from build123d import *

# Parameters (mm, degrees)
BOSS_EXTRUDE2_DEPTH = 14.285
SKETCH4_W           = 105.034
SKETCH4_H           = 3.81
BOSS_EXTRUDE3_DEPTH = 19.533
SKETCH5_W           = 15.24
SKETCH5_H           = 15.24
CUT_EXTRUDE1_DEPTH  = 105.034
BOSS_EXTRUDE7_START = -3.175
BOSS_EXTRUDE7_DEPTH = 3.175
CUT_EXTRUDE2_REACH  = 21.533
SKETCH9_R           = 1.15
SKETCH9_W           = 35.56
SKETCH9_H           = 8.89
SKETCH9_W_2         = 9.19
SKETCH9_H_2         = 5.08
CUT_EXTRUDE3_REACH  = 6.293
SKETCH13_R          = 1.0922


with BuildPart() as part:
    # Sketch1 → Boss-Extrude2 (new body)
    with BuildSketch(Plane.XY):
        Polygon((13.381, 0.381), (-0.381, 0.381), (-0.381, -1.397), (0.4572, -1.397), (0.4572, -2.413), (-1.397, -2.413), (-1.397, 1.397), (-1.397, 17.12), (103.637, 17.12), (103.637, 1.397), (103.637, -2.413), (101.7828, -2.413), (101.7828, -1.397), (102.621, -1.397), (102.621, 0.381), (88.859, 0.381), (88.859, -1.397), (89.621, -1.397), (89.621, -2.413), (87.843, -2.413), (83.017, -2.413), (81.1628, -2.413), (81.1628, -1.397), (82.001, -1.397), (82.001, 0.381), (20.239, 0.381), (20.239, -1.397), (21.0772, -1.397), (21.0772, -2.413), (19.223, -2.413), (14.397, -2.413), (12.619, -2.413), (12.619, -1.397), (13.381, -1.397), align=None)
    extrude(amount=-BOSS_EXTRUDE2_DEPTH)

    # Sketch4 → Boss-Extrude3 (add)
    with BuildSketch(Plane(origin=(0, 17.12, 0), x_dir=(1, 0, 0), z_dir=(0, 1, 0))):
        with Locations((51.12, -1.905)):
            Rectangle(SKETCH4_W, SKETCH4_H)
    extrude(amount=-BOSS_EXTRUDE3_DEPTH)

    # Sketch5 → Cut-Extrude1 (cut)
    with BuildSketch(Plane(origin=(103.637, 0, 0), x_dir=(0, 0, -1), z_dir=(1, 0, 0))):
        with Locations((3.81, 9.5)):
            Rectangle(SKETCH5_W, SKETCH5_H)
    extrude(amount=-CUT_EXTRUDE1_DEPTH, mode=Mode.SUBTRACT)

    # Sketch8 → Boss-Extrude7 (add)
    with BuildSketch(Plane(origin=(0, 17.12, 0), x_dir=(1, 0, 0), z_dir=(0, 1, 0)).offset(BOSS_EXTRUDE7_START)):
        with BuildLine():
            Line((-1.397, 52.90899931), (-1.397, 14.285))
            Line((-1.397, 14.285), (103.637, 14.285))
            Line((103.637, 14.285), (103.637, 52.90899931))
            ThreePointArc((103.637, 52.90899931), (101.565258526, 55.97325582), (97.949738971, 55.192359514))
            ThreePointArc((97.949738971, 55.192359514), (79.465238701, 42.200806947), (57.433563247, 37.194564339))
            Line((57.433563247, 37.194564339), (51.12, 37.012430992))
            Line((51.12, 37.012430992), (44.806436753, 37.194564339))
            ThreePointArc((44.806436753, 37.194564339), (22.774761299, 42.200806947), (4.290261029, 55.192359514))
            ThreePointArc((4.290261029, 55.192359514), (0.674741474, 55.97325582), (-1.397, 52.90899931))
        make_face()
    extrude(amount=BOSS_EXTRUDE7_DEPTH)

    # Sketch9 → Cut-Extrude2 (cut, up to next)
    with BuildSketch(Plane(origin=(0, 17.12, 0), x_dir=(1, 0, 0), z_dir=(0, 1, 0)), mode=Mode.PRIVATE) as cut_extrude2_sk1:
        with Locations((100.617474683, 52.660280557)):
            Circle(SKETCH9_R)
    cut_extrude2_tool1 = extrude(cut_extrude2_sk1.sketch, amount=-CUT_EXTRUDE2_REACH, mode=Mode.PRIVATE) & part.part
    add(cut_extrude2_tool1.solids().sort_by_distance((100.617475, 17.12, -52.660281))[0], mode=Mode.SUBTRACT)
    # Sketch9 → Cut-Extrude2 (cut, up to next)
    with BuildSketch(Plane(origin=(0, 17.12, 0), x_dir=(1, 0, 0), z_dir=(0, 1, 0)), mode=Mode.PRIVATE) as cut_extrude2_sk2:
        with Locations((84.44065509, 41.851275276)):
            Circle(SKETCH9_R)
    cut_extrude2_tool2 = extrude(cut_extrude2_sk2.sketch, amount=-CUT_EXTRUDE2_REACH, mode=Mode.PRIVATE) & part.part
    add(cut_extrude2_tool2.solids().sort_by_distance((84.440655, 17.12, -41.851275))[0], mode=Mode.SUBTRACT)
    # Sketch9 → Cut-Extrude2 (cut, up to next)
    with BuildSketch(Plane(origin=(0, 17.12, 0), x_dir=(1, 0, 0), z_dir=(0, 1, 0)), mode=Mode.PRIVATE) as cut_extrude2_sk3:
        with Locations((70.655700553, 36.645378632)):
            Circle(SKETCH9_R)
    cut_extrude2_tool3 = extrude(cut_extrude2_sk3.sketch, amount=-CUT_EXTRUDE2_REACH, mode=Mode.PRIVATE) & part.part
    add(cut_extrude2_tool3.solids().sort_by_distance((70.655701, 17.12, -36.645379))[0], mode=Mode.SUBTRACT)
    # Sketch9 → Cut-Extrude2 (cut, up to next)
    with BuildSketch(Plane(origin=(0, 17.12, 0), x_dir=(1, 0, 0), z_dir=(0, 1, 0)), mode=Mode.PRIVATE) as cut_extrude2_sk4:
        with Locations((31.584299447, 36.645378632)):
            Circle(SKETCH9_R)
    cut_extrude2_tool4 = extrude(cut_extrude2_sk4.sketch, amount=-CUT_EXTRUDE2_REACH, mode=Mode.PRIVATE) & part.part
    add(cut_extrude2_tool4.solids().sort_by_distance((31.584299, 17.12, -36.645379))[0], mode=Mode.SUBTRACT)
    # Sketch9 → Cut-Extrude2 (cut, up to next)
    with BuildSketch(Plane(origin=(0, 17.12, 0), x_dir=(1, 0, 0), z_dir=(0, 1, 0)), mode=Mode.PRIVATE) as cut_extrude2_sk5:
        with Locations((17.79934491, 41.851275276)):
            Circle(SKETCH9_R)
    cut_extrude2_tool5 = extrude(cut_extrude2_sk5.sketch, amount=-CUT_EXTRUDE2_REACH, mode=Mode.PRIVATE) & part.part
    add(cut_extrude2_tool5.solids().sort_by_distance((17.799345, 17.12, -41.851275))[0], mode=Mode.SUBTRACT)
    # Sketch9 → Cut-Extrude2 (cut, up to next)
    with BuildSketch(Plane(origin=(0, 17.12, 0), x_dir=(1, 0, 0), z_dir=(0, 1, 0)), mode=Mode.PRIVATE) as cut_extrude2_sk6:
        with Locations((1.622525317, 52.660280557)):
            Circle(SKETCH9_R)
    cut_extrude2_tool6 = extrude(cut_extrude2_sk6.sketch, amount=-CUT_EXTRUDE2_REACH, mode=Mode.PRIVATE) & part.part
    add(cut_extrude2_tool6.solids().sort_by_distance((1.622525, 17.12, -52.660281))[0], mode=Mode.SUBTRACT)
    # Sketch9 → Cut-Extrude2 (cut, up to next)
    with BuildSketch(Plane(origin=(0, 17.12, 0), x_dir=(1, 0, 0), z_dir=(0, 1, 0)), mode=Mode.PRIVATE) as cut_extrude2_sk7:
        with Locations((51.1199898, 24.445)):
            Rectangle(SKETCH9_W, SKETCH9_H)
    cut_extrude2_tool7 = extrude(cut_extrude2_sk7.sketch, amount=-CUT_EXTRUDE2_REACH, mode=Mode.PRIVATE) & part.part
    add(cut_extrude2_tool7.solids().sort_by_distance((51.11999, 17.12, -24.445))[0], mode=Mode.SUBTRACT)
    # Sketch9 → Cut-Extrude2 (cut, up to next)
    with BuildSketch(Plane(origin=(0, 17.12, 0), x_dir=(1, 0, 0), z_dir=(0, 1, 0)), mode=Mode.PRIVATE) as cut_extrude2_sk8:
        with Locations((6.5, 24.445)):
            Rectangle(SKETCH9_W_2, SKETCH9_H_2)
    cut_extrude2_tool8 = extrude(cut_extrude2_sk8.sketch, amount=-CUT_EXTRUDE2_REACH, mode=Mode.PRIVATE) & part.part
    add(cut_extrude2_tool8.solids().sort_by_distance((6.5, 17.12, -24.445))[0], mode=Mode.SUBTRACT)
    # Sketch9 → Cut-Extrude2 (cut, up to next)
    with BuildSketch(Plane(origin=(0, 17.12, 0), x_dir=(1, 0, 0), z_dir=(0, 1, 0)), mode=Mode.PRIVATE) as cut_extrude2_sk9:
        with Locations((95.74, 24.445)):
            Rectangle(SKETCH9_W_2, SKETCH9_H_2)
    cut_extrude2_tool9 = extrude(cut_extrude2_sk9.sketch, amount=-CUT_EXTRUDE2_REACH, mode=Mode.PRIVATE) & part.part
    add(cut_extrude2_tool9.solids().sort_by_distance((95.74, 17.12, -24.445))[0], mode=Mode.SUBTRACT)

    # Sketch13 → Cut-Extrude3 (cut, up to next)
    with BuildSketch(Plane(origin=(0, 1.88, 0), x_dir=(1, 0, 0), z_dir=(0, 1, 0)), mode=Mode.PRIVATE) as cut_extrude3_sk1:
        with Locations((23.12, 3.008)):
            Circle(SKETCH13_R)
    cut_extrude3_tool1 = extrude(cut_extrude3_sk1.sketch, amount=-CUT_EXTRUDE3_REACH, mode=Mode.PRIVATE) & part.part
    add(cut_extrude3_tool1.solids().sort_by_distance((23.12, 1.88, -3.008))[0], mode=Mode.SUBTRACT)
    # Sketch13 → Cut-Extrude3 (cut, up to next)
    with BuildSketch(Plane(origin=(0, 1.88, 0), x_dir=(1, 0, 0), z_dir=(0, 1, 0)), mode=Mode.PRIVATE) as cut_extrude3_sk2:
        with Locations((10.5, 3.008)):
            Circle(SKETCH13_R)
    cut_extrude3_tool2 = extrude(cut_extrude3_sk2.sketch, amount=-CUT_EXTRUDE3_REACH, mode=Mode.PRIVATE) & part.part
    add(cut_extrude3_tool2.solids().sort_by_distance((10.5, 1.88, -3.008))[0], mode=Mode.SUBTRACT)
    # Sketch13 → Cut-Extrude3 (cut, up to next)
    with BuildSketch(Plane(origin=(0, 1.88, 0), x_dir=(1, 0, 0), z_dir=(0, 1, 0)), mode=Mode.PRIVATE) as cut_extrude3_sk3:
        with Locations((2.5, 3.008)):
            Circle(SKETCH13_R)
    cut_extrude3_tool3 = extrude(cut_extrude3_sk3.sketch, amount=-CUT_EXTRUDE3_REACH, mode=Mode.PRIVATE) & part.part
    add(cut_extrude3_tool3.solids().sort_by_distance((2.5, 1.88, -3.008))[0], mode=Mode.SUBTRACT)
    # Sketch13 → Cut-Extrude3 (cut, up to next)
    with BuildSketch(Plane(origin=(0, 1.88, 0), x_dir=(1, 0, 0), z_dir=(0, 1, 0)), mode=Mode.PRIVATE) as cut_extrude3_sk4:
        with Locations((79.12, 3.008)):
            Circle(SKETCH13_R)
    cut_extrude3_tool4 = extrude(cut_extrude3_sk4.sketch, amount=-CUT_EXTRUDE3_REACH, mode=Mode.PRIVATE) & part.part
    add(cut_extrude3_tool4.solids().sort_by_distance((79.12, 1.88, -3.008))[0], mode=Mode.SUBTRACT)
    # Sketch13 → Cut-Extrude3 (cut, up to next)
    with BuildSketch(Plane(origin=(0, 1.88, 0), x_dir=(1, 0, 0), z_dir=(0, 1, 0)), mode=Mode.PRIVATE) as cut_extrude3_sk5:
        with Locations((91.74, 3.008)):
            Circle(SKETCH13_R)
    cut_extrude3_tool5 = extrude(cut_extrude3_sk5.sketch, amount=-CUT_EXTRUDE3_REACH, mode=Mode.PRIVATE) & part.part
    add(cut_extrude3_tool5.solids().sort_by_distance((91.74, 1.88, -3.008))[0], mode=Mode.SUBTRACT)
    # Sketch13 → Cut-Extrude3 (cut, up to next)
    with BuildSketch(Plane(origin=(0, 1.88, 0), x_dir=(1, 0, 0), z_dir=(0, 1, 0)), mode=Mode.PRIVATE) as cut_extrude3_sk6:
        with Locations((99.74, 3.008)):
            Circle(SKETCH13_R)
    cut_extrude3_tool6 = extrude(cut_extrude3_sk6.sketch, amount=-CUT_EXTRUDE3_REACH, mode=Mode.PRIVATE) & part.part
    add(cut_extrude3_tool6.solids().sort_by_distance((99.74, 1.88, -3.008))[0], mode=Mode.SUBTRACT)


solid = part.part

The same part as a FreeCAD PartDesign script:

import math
import FreeCAD as App
import Part
import Sketcher
from FreeCAD import Vector
Q = App.Units.Quantity

doc = App.newDocument("Part")
params = doc.addObject("Spreadsheet::Sheet", "Params")
for row, (alias, value) in enumerate([
    ("sketch1_width", "0.03 in"),
    ("sketch1_height", "0.07 in"),
    ("sketch1_height2", "0.04 in"),
    ("sketch1_width2", "0.333 in"),
    ("sketch1_width3", "0.073 in"),
    ("pad1_length", "14.285 mm"),
    ("sketch2_height", "0.15 in"),
    ("pad2_length", "19.533 mm"),
    ("sketch3_width", "0.6 in"),
    ("pocket1_length", "105.034 mm"),
    ("sketch4_radius", "2.3 in"),
    ("sketch4_radius2", "0.13 in"),
    ("pad3_length", "0.125 in"),
    ("sketch11_width", "1.4 in"),
    ("sketch11_height", "0.35 in"),
    ("sketch12_height", "0.2 in"),
    ("sketch13_height", "0.2 in"),
    ("sketch14_diameter", "0.086 in"),
    ("sketch15_diameter", "0.086 in"),
    ("sketch16_diameter", "0.086 in"),
    ("sketch17_diameter", "0.086 in"),
    ("sketch18_diameter", "0.086 in"),
    ("sketch19_diameter", "0.086 in"),
], start=1):
    params.set(f"A{row}", alias)
    params.set(f"B{row}", "=" + value)
    params.setAlias(f"B{row}", alias)

body = doc.addObject("PartDesign::Body", "Body")

sketch1 = body.newObject("Sketcher::SketchObject", "Sketch")
sketch1.AttachmentSupport = (doc.getObject("XY_Plane"), [""])
sketch1.MapMode = "FlatFace"
sketch1.addGeometry(Part.LineSegment(Vector(-0.381, 0.381, 0), Vector(13.381, 0.381, 0)), False)
sketch1.addGeometry(Part.LineSegment(Vector(13.381, 0.381, 0), Vector(13.381, -1.397, 0)), False)
sketch1.addGeometry(Part.LineSegment(Vector(13.381, -1.397, 0), Vector(12.619, -1.397, 0)), False)
sketch1.addGeometry(Part.LineSegment(Vector(12.619, -1.397, 0), Vector(12.619, -2.413, 0)), False)
sketch1.addGeometry(Part.LineSegment(Vector(12.619, -2.413, 0), Vector(21.0772, -2.413, 0)), False)
sketch1.addGeometry(Part.LineSegment(Vector(21.0772, -2.413, 0), Vector(21.0772, -1.397, 0)), False)
sketch1.addGeometry(Part.LineSegment(Vector(21.0772, -1.397, 0), Vector(20.239, -1.397, 0)), False)
sketch1.addGeometry(Part.LineSegment(Vector(20.239, -1.397, 0), Vector(20.239, 0.381, 0)), False)
sketch1.addGeometry(Part.LineSegment(Vector(20.239, 0.381, 0), Vector(82.001, 0.381, 0)), False)
sketch1.addGeometry(Part.LineSegment(Vector(82.001, 0.381, 0), Vector(82.001, -1.397, 0)), False)
sketch1.addGeometry(Part.LineSegment(Vector(82.001, -1.397, 0), Vector(81.1628, -1.397, 0)), False)
sketch1.addGeometry(Part.LineSegment(Vector(81.1628, -1.397, 0), Vector(81.1628, -2.413, 0)), False)
sketch1.addGeometry(Part.LineSegment(Vector(81.1628, -2.413, 0), Vector(89.621, -2.413, 0)), False)
sketch1.addGeometry(Part.LineSegment(Vector(89.621, -2.413, 0), Vector(89.621, -1.397, 0)), False)
sketch1.addGeometry(Part.LineSegment(Vector(89.621, -1.397, 0), Vector(88.859, -1.397, 0)), False)
sketch1.addGeometry(Part.LineSegment(Vector(88.859, -1.397, 0), Vector(88.859, 0.381, 0)), False)
sketch1.addGeometry(Part.LineSegment(Vector(88.859, 0.381, 0), Vector(102.621, 0.381, 0)), False)
sketch1.addGeometry(Part.LineSegment(Vector(102.621, 0.381, 0), Vector(102.621, -1.397, 0)), False)
sketch1.addGeometry(Part.LineSegment(Vector(102.621, -1.397, 0), Vector(101.7828, -1.397, 0)), False)
sketch1.addGeometry(Part.LineSegment(Vector(101.7828, -1.397, 0), Vector(101.7828, -2.413, 0)), False)
sketch1.addGeometry(Part.LineSegment(Vector(101.7828, -2.413, 0), Vector(103.637, -2.413, 0)), False)
sketch1.addGeometry(Part.LineSegment(Vector(103.637, -2.413, 0), Vector(103.637, 17.12, 0)), False)
sketch1.addGeometry(Part.LineSegment(Vector(103.637, 17.12, 0), Vector(-1.397, 17.12, 0)), False)
sketch1.addGeometry(Part.LineSegment(Vector(-1.397, 17.12, 0), Vector(-1.397, -2.413, 0)), False)
sketch1.addGeometry(Part.LineSegment(Vector(-1.397, -2.413, 0), Vector(0.4572, -2.413, 0)), False)
sketch1.addGeometry(Part.LineSegment(Vector(0.4572, -2.413, 0), Vector(0.4572, -1.397, 0)), False)
sketch1.addGeometry(Part.LineSegment(Vector(0.4572, -1.397, 0), Vector(-0.381, -1.397, 0)), False)
sketch1.addGeometry(Part.LineSegment(Vector(-0.381, -1.397, 0), Vector(-0.381, 0.381, 0)), False)
sketch1.addConstraint(Sketcher.Constraint("Coincident", 0, 2, 1, 1))
sketch1.addConstraint(Sketcher.Constraint("Coincident", 1, 2, 2, 1))
sketch1.addConstraint(Sketcher.Constraint("Coincident", 2, 2, 3, 1))
sketch1.addConstraint(Sketcher.Constraint("Coincident", 3, 2, 4, 1))
sketch1.addConstraint(Sketcher.Constraint("Coincident", 4, 2, 5, 1))
sketch1.addConstraint(Sketcher.Constraint("Coincident", 5, 2, 6, 1))
sketch1.addConstraint(Sketcher.Constraint("Coincident", 6, 2, 7, 1))
sketch1.addConstraint(Sketcher.Constraint("Coincident", 7, 2, 8, 1))
sketch1.addConstraint(Sketcher.Constraint("Coincident", 8, 2, 9, 1))
sketch1.addConstraint(Sketcher.Constraint("Coincident", 9, 2, 10, 1))
sketch1.addConstraint(Sketcher.Constraint("Coincident", 10, 2, 11, 1))
sketch1.addConstraint(Sketcher.Constraint("Coincident", 11, 2, 12, 1))
sketch1.addConstraint(Sketcher.Constraint("Coincident", 12, 2, 13, 1))
sketch1.addConstraint(Sketcher.Constraint("Coincident", 13, 2, 14, 1))
sketch1.addConstraint(Sketcher.Constraint("Coincident", 14, 2, 15, 1))
sketch1.addConstraint(Sketcher.Constraint("Coincident", 15, 2, 16, 1))
sketch1.addConstraint(Sketcher.Constraint("Coincident", 16, 2, 17, 1))
sketch1.addConstraint(Sketcher.Constraint("Coincident", 17, 2, 18, 1))
sketch1.addConstraint(Sketcher.Constraint("Coincident", 18, 2, 19, 1))
sketch1.addConstraint(Sketcher.Constraint("Coincident", 19, 2, 20, 1))
sketch1.addConstraint(Sketcher.Constraint("Coincident", 20, 2, 21, 1))
sketch1.addConstraint(Sketcher.Constraint("Coincident", 21, 2, 22, 1))
sketch1.addConstraint(Sketcher.Constraint("Coincident", 22, 2, 23, 1))
sketch1.addConstraint(Sketcher.Constraint("Coincident", 23, 2, 24, 1))
sketch1.addConstraint(Sketcher.Constraint("Coincident", 24, 2, 25, 1))
sketch1.addConstraint(Sketcher.Constraint("Coincident", 25, 2, 26, 1))
sketch1.addConstraint(Sketcher.Constraint("Coincident", 26, 2, 27, 1))
sketch1.addConstraint(Sketcher.Constraint("Coincident", 27, 2, 0, 1))
sketch1.addConstraint(Sketcher.Constraint("Horizontal", 0))
sketch1.addConstraint(Sketcher.Constraint("Vertical", 1))
sketch1.addConstraint(Sketcher.Constraint("Horizontal", 2))
sketch1.addConstraint(Sketcher.Constraint("Vertical", 3))
sketch1.addConstraint(Sketcher.Constraint("Horizontal", 4))
sketch1.addConstraint(Sketcher.Constraint("Vertical", 5))
sketch1.addConstraint(Sketcher.Constraint("Horizontal", 6))
sketch1.addConstraint(Sketcher.Constraint("Vertical", 7))
sketch1.addConstraint(Sketcher.Constraint("Horizontal", 8))
sketch1.addConstraint(Sketcher.Constraint("Vertical", 9))
sketch1.addConstraint(Sketcher.Constraint("Horizontal", 10))
sketch1.addConstraint(Sketcher.Constraint("Vertical", 11))
sketch1.addConstraint(Sketcher.Constraint("Horizontal", 12))
sketch1.addConstraint(Sketcher.Constraint("Vertical", 13))
sketch1.addConstraint(Sketcher.Constraint("Horizontal", 14))
sketch1.addConstraint(Sketcher.Constraint("Vertical", 15))
sketch1.addConstraint(Sketcher.Constraint("Horizontal", 16))
sketch1.addConstraint(Sketcher.Constraint("Vertical", 17))
sketch1.addConstraint(Sketcher.Constraint("Horizontal", 18))
sketch1.addConstraint(Sketcher.Constraint("Vertical", 19))
sketch1.addConstraint(Sketcher.Constraint("Horizontal", 20))
sketch1.addConstraint(Sketcher.Constraint("Vertical", 21))
sketch1.addConstraint(Sketcher.Constraint("Horizontal", 22))
sketch1.addConstraint(Sketcher.Constraint("Vertical", 23))
sketch1.addConstraint(Sketcher.Constraint("Horizontal", 24))
sketch1.addConstraint(Sketcher.Constraint("Vertical", 25))
sketch1.addConstraint(Sketcher.Constraint("Horizontal", 26))
sketch1.addConstraint(Sketcher.Constraint("Vertical", 27))
sketch1.addConstraint(Sketcher.Constraint("Horizontal", 2, 2, 5, 2))
sketch1.addConstraint(Sketcher.Constraint("Horizontal", 0, 2, 7, 2))
sketch1.addConstraint(Sketcher.Constraint("Horizontal", 6, 2, 9, 2))
sketch1.addConstraint(Sketcher.Constraint("Horizontal", 4, 2, 11, 2))
sketch1.addConstraint(Sketcher.Constraint("Horizontal", 10, 2, 13, 2))
sketch1.addConstraint(Sketcher.Constraint("Horizontal", 8, 2, 15, 2))
sketch1.addConstraint(Sketcher.Constraint("Horizontal", 14, 2, 17, 2))
sketch1.addConstraint(Sketcher.Constraint("Horizontal", 12, 2, 19, 2))
sketch1.addConstraint(Sketcher.Constraint("Horizontal", 20, 2, 23, 2))
sketch1.addConstraint(Sketcher.Constraint("Horizontal", 18, 2, 25, 2))
sketch1.addConstraint(Sketcher.Constraint("Equal", 6, 10))
sketch1.addConstraint(Sketcher.Constraint("Equal", 4, 12))
sketch1.addConstraint(Sketcher.Constraint("Equal", 2, 14))
sketch1.addConstraint(Sketcher.Constraint("Equal", 0, 16))
sketch1.addConstraint(Sketcher.Constraint("Equal", 10, 18))
sketch1.addConstraint(Sketcher.Constraint("Equal", 20, 24))
sketch1.addConstraint(Sketcher.Constraint("Equal", 18, 26))
sketch1.addConstraint(Sketcher.Constraint("DistanceX", 2, 2, 2, 1, Q("0.03 in")))
sketch1.addConstraint(Sketcher.Constraint("DistanceY", 1, 2, 1, 1, Q("0.07 in")))
sketch1.addConstraint(Sketcher.Constraint("DistanceY", 3, 2, 3, 1, Q("0.04 in")))
sketch1.addConstraint(Sketcher.Constraint("DistanceX", 2, 2, 6, 2, Q("0.3 in")))
sketch1.addConstraint(Sketcher.Constraint("DistanceX", 4, 1, 4, 2, Q("0.333 in")))
sketch1.addConstraint(Sketcher.Constraint("DistanceX", 20, 1, 20, 2, Q("0.073 in")))
sketch1.addConstraint(Sketcher.Constraint("DistanceY", -1, 1, 0, 2, Q("0.015 in")))
sketch1.addConstraint(Sketcher.Constraint("DistanceX", 22, 2, -1, 1, Q("0.055 in")))
sketch1.addConstraint(Sketcher.Constraint("DistanceX", 0, 1, 0, 2, Q("13.762 mm")))
sketch1.addConstraint(Sketcher.Constraint("DistanceX", 8, 1, 8, 2, Q("61.762 mm")))
sketch1.addConstraint(Sketcher.Constraint("DistanceY", 21, 1, 21, 2, Q("19.533 mm")))
sketch1.setExpression("Constraints[73]", "Params.sketch1_width")
sketch1.setExpression("Constraints[74]", "Params.sketch1_height")
sketch1.setExpression("Constraints[75]", "Params.sketch1_height2")
sketch1.setExpression("Constraints[77]", "Params.sketch1_width2")
sketch1.setExpression("Constraints[78]", "Params.sketch1_width3")
pad1 = body.newObject("PartDesign::Pad", "Pad")
pad1.Profile = sketch1
pad1.setExpression("Length", "Params.pad1_length")
pad1.Reversed = True

sketch2 = body.newObject("Sketcher::SketchObject", "Sketch001")
sketch2.AttachmentSupport = (doc.getObject("XZ_Plane"), [""])
sketch2.MapMode = "FlatFace"
sketch2.AttachmentOffset = App.Placement(Vector(0, 0, -17.12), App.Rotation())
sketch2.addGeometry(Part.LineSegment(Vector(-1.397, 0, 0), Vector(-1.397, 3.81, 0)), False)
sketch2.addGeometry(Part.LineSegment(Vector(-1.397, 3.81, 0), Vector(103.637, 3.81, 0)), False)
sketch2.addGeometry(Part.LineSegment(Vector(103.637, 3.81, 0), Vector(103.637, 0, 0)), False)
sketch2.addGeometry(Part.LineSegment(Vector(103.637, 0, 0), Vector(-1.397, 0, 0)), False)
sketch2.addConstraint(Sketcher.Constraint("Coincident", 0, 2, 1, 1))
sketch2.addConstraint(Sketcher.Constraint("Coincident", 1, 2, 2, 1))
sketch2.addConstraint(Sketcher.Constraint("Coincident", 2, 2, 3, 1))
sketch2.addConstraint(Sketcher.Constraint("Coincident", 3, 2, 0, 1))
sketch2.addConstraint(Sketcher.Constraint("Vertical", 0))
sketch2.addConstraint(Sketcher.Constraint("Horizontal", 1))
sketch2.addConstraint(Sketcher.Constraint("Vertical", 2))
sketch2.addConstraint(Sketcher.Constraint("Horizontal", 3))
sketch2.addConstraint(Sketcher.Constraint("PointOnObject", 2, 2, -1))
sketch2.addConstraint(Sketcher.Constraint("DistanceY", 0, 1, 0, 2, Q("0.15 in")))
sketch2.addConstraint(Sketcher.Constraint("DistanceX", 0, 2, -1, 1, Q("0.055 in")))
sketch2.addConstraint(Sketcher.Constraint("DistanceX", 1, 1, 1, 2, Q("105.034 mm")))
sketch2.setExpression("Constraints[9]", "Params.sketch2_height")
pad2 = body.newObject("PartDesign::Pad", "Pad001")
pad2.Profile = sketch2
pad2.setExpression("Length", "Params.pad2_length")

sketch3 = body.newObject("Sketcher::SketchObject", "Sketch002")
sketch3.AttachmentSupport = (doc.getObject("YZ_Plane"), [""])
sketch3.MapMode = "FlatFace"
sketch3.AttachmentOffset = App.Placement(Vector(0, 0, 103.637), App.Rotation())
sketch3.addGeometry(Part.LineSegment(Vector(17.12, 3.81, 0), Vector(1.88, 3.81, 0)), False)
sketch3.addGeometry(Part.LineSegment(Vector(1.88, 3.81, 0), Vector(1.88, -11.43, 0)), False)
sketch3.addGeometry(Part.LineSegment(Vector(1.88, -11.43, 0), Vector(17.12, -11.43, 0)), False)
sketch3.addGeometry(Part.LineSegment(Vector(17.12, -11.43, 0), Vector(17.12, 3.81, 0)), False)
sketch3.addConstraint(Sketcher.Constraint("Coincident", 0, 2, 1, 1))
sketch3.addConstraint(Sketcher.Constraint("Coincident", 1, 2, 2, 1))
sketch3.addConstraint(Sketcher.Constraint("Coincident", 2, 2, 3, 1))
sketch3.addConstraint(Sketcher.Constraint("Coincident", 3, 2, 0, 1))
sketch3.addConstraint(Sketcher.Constraint("Horizontal", 0))
sketch3.addConstraint(Sketcher.Constraint("Vertical", 1))
sketch3.addConstraint(Sketcher.Constraint("Horizontal", 2))
sketch3.addConstraint(Sketcher.Constraint("Vertical", 3))
sketch3.addConstraint(Sketcher.Constraint("Equal", 2, 1))
sketch3.addConstraint(Sketcher.Constraint("DistanceX", 0, 2, 0, 1, Q("0.6 in")))
sketch3.addConstraint(Sketcher.Constraint("DistanceY", -1, 1, 0, 2, Q("0.15 in")))
sketch3.addConstraint(Sketcher.Constraint("DistanceX", -1, 1, 0, 2, Q("1.88 mm")))
sketch3.setExpression("Constraints[9]", "Params.sketch3_width")
pocket1 = body.newObject("PartDesign::Pocket", "Pocket")
pocket1.Profile = sketch3
pocket1.setExpression("Length", "Params.pocket1_length")

sketch4 = body.newObject("Sketcher::SketchObject", "Sketch003")
sketch4.AttachmentSupport = (doc.getObject("XZ_Plane"), [""])
sketch4.MapMode = "FlatFace"
sketch4.AttachmentOffset = App.Placement(Vector(0, 0, -13.945), App.Rotation())
sketch4.addGeometry(Part.LineSegment(Vector(-1.397, -52.908999, 0), Vector(-1.397, -14.285, 0)), False)
sketch4.addGeometry(Part.LineSegment(Vector(-1.397, -14.285, 0), Vector(103.637, -14.285, 0)), False)
sketch4.addGeometry(Part.LineSegment(Vector(103.637, -14.285, 0), Vector(103.637, -52.908999, 0)), False)
sketch4.addGeometry(Part.ArcOfCircle(Part.Circle(Vector(100.335, -52.908999, 0), Vector(0, 0, 1), 3.302), math.radians(-136.250382), math.radians(0)), False)
sketch4.addGeometry(Part.ArcOfCircle(Part.Circle(Vector(55.748967, -95.590271, 0), Vector(0, 0, 1), 58.42), math.radians(43.749618), math.radians(88.347593)), False)
sketch4.addGeometry(Part.LineSegment(Vector(57.433563, -37.194564, 0), Vector(51.12, -37.012431, 0)), False)
sketch4.addGeometry(Part.LineSegment(Vector(51.12, -37.012431, 0), Vector(44.806437, -37.194564, 0)), False)
sketch4.addGeometry(Part.ArcOfCircle(Part.Circle(Vector(46.491033, -95.590271, 0), Vector(0, 0, 1), 58.42), math.radians(91.652407), math.radians(136.250382)), False)
sketch4.addGeometry(Part.ArcOfCircle(Part.Circle(Vector(1.905, -52.908999, 0), Vector(0, 0, 1), 3.302), math.radians(180), math.radians(316.250382)), False)
sketch4.addConstraint(Sketcher.Constraint("Coincident", 0, 2, 1, 1))
sketch4.addConstraint(Sketcher.Constraint("Coincident", 1, 2, 2, 1))
sketch4.addConstraint(Sketcher.Constraint("Tangent", 2, 2, 3, 2))
sketch4.addConstraint(Sketcher.Constraint("Tangent", 3, 1, 4, 1))
sketch4.addConstraint(Sketcher.Constraint("Tangent", 4, 2, 5, 1))
sketch4.addConstraint(Sketcher.Constraint("Coincident", 5, 2, 6, 1))
sketch4.addConstraint(Sketcher.Constraint("Tangent", 6, 2, 7, 1))
sketch4.addConstraint(Sketcher.Constraint("Tangent", 7, 2, 8, 2))
sketch4.addConstraint(Sketcher.Constraint("Tangent", 8, 1, 0, 1))
sketch4.addConstraint(Sketcher.Constraint("Vertical", 0))
sketch4.addConstraint(Sketcher.Constraint("Horizontal", 1))
sketch4.addConstraint(Sketcher.Constraint("Vertical", 2))
sketch4.addConstraint(Sketcher.Constraint("Equal", 4, 7))
sketch4.addConstraint(Sketcher.Constraint("Equal", 3, 8))
sketch4.addConstraint(Sketcher.Constraint("Horizontal", 4, 3, 7, 3))
sketch4.addConstraint(Sketcher.Constraint("Horizontal", 3, 3, 8, 3))
sketch4.addConstraint(Sketcher.Constraint("Horizontal", 4, 2, 6, 2))
sketch4.addConstraint(Sketcher.Constraint("Radius", 4, Q("2.3 in")))
sketch4.addConstraint(Sketcher.Constraint("Radius", 3, Q("0.13 in")))
sketch4.addConstraint(Sketcher.Constraint("DistanceX", -1, 1, 8, 3, Q("0.075 in")))
sketch4.addConstraint(Sketcher.Constraint("DistanceX", 1, 1, 1, 2, Q("105.034 mm")))
sketch4.addConstraint(Sketcher.Constraint("DistanceY", 0, 1, 0, 2, Q("38.623999 mm")))
sketch4.addConstraint(Sketcher.Constraint("DistanceY", 3, 3, -1, 1, Q("52.908999 mm")))
sketch4.addConstraint(Sketcher.Constraint("Distance", 5, Q("6.31619 mm")))
sketch4.addConstraint(Sketcher.Constraint("DistanceY", 4, 3, -1, 1, Q("95.590271 mm")))
sketch4.setExpression("Constraints[17]", "Params.sketch4_radius")
sketch4.setExpression("Constraints[18]", "Params.sketch4_radius2")
pad3 = body.newObject("PartDesign::Pad", "Pad002")
pad3.Profile = sketch4
pad3.setExpression("Length", "Params.pad3_length")
pad3.Reversed = True

sketch5 = body.newObject("Sketcher::SketchObject", "Sketch004")
sketch5.AttachmentSupport = (doc.getObject("XZ_Plane"), [""])
sketch5.MapMode = "FlatFace"
sketch5.AttachmentOffset = App.Placement(Vector(0, 0, -17.12), App.Rotation())
sketch5.addGeometry(Part.Circle(Vector(100.617475, -52.660281, 0), Vector(0, 0, 1), 1.15), False)
sketch5.addConstraint(Sketcher.Constraint("Diameter", 0, Q("2.3 mm")))
sketch5.addConstraint(Sketcher.Constraint("DistanceY", 0, 3, -1, 1, Q("52.660281 mm")))
sketch5.addConstraint(Sketcher.Constraint("DistanceX", -1, 1, 0, 3, Q("100.617475 mm")))
pocket2 = body.newObject("PartDesign::Pocket", "Pocket001")
pocket2.Profile = sketch5
pocket2.Type = "UpToFirst"
pocket2.Reversed = True

sketch6 = body.newObject("Sketcher::SketchObject", "Sketch005")
sketch6.AttachmentSupport = (doc.getObject("XZ_Plane"), [""])
sketch6.MapMode = "FlatFace"
sketch6.AttachmentOffset = App.Placement(Vector(0, 0, -17.12), App.Rotation())
sketch6.addGeometry(Part.Circle(Vector(84.440655, -41.851275, 0), Vector(0, 0, 1), 1.15), False)
sketch6.addConstraint(Sketcher.Constraint("Diameter", 0, Q("2.3 mm")))
sketch6.addConstraint(Sketcher.Constraint("DistanceX", -1, 1, 0, 3, Q("84.440655 mm")))
sketch6.addConstraint(Sketcher.Constraint("DistanceY", 0, 3, -1, 1, Q("41.851275 mm")))
pocket3 = body.newObject("PartDesign::Pocket", "Pocket002")
pocket3.Profile = sketch6
pocket3.Type = "UpToFirst"
pocket3.Reversed = True

sketch7 = body.newObject("Sketcher::SketchObject", "Sketch006")
sketch7.AttachmentSupport = (doc.getObject("XZ_Plane"), [""])
sketch7.MapMode = "FlatFace"
sketch7.AttachmentOffset = App.Placement(Vector(0, 0, -17.12), App.Rotation())
sketch7.addGeometry(Part.Circle(Vector(70.655701, -36.645379, 0), Vector(0, 0, 1), 1.15), False)
sketch7.addConstraint(Sketcher.Constraint("Diameter", 0, Q("2.3 mm")))
sketch7.addConstraint(Sketcher.Constraint("DistanceX", -1, 1, 0, 3, Q("70.655701 mm")))
sketch7.addConstraint(Sketcher.Constraint("DistanceY", 0, 3, -1, 1, Q("36.645379 mm")))
pocket4 = body.newObject("PartDesign::Pocket", "Pocket003")
pocket4.Profile = sketch7
pocket4.Type = "UpToFirst"
pocket4.Reversed = True

sketch8 = body.newObject("Sketcher::SketchObject", "Sketch007")
sketch8.AttachmentSupport = (doc.getObject("XZ_Plane"), [""])
sketch8.MapMode = "FlatFace"
sketch8.AttachmentOffset = App.Placement(Vector(0, 0, -17.12), App.Rotation())
sketch8.addGeometry(Part.Circle(Vector(31.584299, -36.645379, 0), Vector(0, 0, 1), 1.15), False)
sketch8.addConstraint(Sketcher.Constraint("Diameter", 0, Q("2.3 mm")))
sketch8.addConstraint(Sketcher.Constraint("DistanceX", -1, 1, 0, 3, Q("31.584299 mm")))
sketch8.addConstraint(Sketcher.Constraint("DistanceY", 0, 3, -1, 1, Q("36.645379 mm")))
pocket5 = body.newObject("PartDesign::Pocket", "Pocket004")
pocket5.Profile = sketch8
pocket5.Type = "UpToFirst"
pocket5.Reversed = True

sketch9 = body.newObject("Sketcher::SketchObject", "Sketch008")
sketch9.AttachmentSupport = (doc.getObject("XZ_Plane"), [""])
sketch9.MapMode = "FlatFace"
sketch9.AttachmentOffset = App.Placement(Vector(0, 0, -17.12), App.Rotation())
sketch9.addGeometry(Part.Circle(Vector(17.799345, -41.851275, 0), Vector(0, 0, 1), 1.15), False)
sketch9.addConstraint(Sketcher.Constraint("Diameter", 0, Q("2.3 mm")))
sketch9.addConstraint(Sketcher.Constraint("DistanceX", -1, 1, 0, 3, Q("17.799345 mm")))
sketch9.addConstraint(Sketcher.Constraint("DistanceY", 0, 3, -1, 1, Q("41.851275 mm")))
pocket6 = body.newObject("PartDesign::Pocket", "Pocket005")
pocket6.Profile = sketch9
pocket6.Type = "UpToFirst"
pocket6.Reversed = True

sketch10 = body.newObject("Sketcher::SketchObject", "Sketch009")
sketch10.AttachmentSupport = (doc.getObject("XZ_Plane"), [""])
sketch10.MapMode = "FlatFace"
sketch10.AttachmentOffset = App.Placement(Vector(0, 0, -17.12), App.Rotation())
sketch10.addGeometry(Part.Circle(Vector(1.622525, -52.660281, 0), Vector(0, 0, 1), 1.15), False)
sketch10.addConstraint(Sketcher.Constraint("Diameter", 0, Q("2.3 mm")))
sketch10.addConstraint(Sketcher.Constraint("DistanceY", 0, 3, -1, 1, Q("52.660281 mm")))
sketch10.addConstraint(Sketcher.Constraint("DistanceX", -1, 1, 0, 3, Q("1.622525 mm")))
pocket7 = body.newObject("PartDesign::Pocket", "Pocket006")
pocket7.Profile = sketch10
pocket7.Type = "UpToFirst"
pocket7.Reversed = True

sketch11 = body.newObject("Sketcher::SketchObject", "Sketch010")
sketch11.AttachmentSupport = (doc.getObject("XZ_Plane"), [""])
sketch11.MapMode = "FlatFace"
sketch11.AttachmentOffset = App.Placement(Vector(0, 0, -17.12), App.Rotation())
sketch11.addGeometry(Part.LineSegment(Vector(33.33999, -28.89, 0), Vector(33.33999, -20, 0)), False)
sketch11.addGeometry(Part.LineSegment(Vector(33.33999, -20, 0), Vector(68.89999, -20, 0)), False)
sketch11.addGeometry(Part.LineSegment(Vector(68.89999, -20, 0), Vector(68.89999, -28.89, 0)), False)
sketch11.addGeometry(Part.LineSegment(Vector(68.89999, -28.89, 0), Vector(33.33999, -28.89, 0)), False)
sketch11.addConstraint(Sketcher.Constraint("Coincident", 0, 2, 1, 1))
sketch11.addConstraint(Sketcher.Constraint("Coincident", 1, 2, 2, 1))
sketch11.addConstraint(Sketcher.Constraint("Coincident", 2, 2, 3, 1))
sketch11.addConstraint(Sketcher.Constraint("Coincident", 3, 2, 0, 1))
sketch11.addConstraint(Sketcher.Constraint("Vertical", 0))
sketch11.addConstraint(Sketcher.Constraint("Horizontal", 1))
sketch11.addConstraint(Sketcher.Constraint("Vertical", 2))
sketch11.addConstraint(Sketcher.Constraint("Horizontal", 3))
sketch11.addConstraint(Sketcher.Constraint("DistanceX", 1, 1, 1, 2, Q("1.4 in")))
sketch11.addConstraint(Sketcher.Constraint("DistanceY", 0, 1, 0, 2, Q("0.35 in")))
sketch11.addConstraint(Sketcher.Constraint("DistanceY", 0, 2, -1, 1, Q("20 mm")))
sketch11.addConstraint(Sketcher.Constraint("DistanceX", -1, 1, 0, 2, Q("33.33999 mm")))
sketch11.setExpression("Constraints[8]", "Params.sketch11_width")
sketch11.setExpression("Constraints[9]", "Params.sketch11_height")
pocket8 = body.newObject("PartDesign::Pocket", "Pocket007")
pocket8.Profile = sketch11
pocket8.Type = "UpToFirst"
pocket8.Reversed = True

sketch12 = body.newObject("Sketcher::SketchObject", "Sketch011")
sketch12.AttachmentSupport = (doc.getObject("XZ_Plane"), [""])
sketch12.MapMode = "FlatFace"
sketch12.AttachmentOffset = App.Placement(Vector(0, 0, -17.12), App.Rotation())
sketch12.addGeometry(Part.LineSegment(Vector(1.905, -26.985, 0), Vector(1.905, -21.905, 0)), False)
sketch12.addGeometry(Part.LineSegment(Vector(1.905, -21.905, 0), Vector(11.095, -21.905, 0)), False)
sketch12.addGeometry(Part.LineSegment(Vector(11.095, -21.905, 0), Vector(11.095, -26.985, 0)), False)
sketch12.addGeometry(Part.LineSegment(Vector(11.095, -26.985, 0), Vector(1.905, -26.985, 0)), False)
sketch12.addConstraint(Sketcher.Constraint("Coincident", 0, 2, 1, 1))
sketch12.addConstraint(Sketcher.Constraint("Coincident", 1, 2, 2, 1))
sketch12.addConstraint(Sketcher.Constraint("Coincident", 2, 2, 3, 1))
sketch12.addConstraint(Sketcher.Constraint("Coincident", 3, 2, 0, 1))
sketch12.addConstraint(Sketcher.Constraint("Vertical", 0))
sketch12.addConstraint(Sketcher.Constraint("Horizontal", 1))
sketch12.addConstraint(Sketcher.Constraint("Vertical", 2))
sketch12.addConstraint(Sketcher.Constraint("Horizontal", 3))
sketch12.addConstraint(Sketcher.Constraint("DistanceY", 0, 1, 0, 2, Q("0.2 in")))
sketch12.addConstraint(Sketcher.Constraint("DistanceX", -1, 1, 0, 2, Q("0.075 in")))
sketch12.addConstraint(Sketcher.Constraint("DistanceX", 1, 1, 1, 2, Q("9.19 mm")))
sketch12.addConstraint(Sketcher.Constraint("DistanceY", 0, 2, -1, 1, Q("21.905 mm")))
sketch12.setExpression("Constraints[8]", "Params.sketch12_height")
pocket9 = body.newObject("PartDesign::Pocket", "Pocket008")
pocket9.Profile = sketch12
pocket9.Type = "UpToFirst"
pocket9.Reversed = True

sketch13 = body.newObject("Sketcher::SketchObject", "Sketch012")
sketch13.AttachmentSupport = (doc.getObject("XZ_Plane"), [""])
sketch13.MapMode = "FlatFace"
sketch13.AttachmentOffset = App.Placement(Vector(0, 0, -17.12), App.Rotation())
sketch13.addGeometry(Part.LineSegment(Vector(91.145, -26.985, 0), Vector(91.145, -21.905, 0)), False)
sketch13.addGeometry(Part.LineSegment(Vector(91.145, -21.905, 0), Vector(100.335, -21.905, 0)), False)
sketch13.addGeometry(Part.LineSegment(Vector(100.335, -21.905, 0), Vector(100.335, -26.985, 0)), False)
sketch13.addGeometry(Part.LineSegment(Vector(100.335, -26.985, 0), Vector(91.145, -26.985, 0)), False)
sketch13.addConstraint(Sketcher.Constraint("Coincident", 0, 2, 1, 1))
sketch13.addConstraint(Sketcher.Constraint("Coincident", 1, 2, 2, 1))
sketch13.addConstraint(Sketcher.Constraint("Coincident", 2, 2, 3, 1))
sketch13.addConstraint(Sketcher.Constraint("Coincident", 3, 2, 0, 1))
sketch13.addConstraint(Sketcher.Constraint("Vertical", 0))
sketch13.addConstraint(Sketcher.Constraint("Horizontal", 1))
sketch13.addConstraint(Sketcher.Constraint("Vertical", 2))
sketch13.addConstraint(Sketcher.Constraint("Horizontal", 3))
sketch13.addConstraint(Sketcher.Constraint("DistanceY", 0, 1, 0, 2, Q("0.2 in")))
sketch13.addConstraint(Sketcher.Constraint("DistanceX", 1, 1, 1, 2, Q("9.19 mm")))
sketch13.addConstraint(Sketcher.Constraint("DistanceX", -1, 1, 0, 2, Q("91.145 mm")))
sketch13.addConstraint(Sketcher.Constraint("DistanceY", 0, 2, -1, 1, Q("21.905 mm")))
sketch13.setExpression("Constraints[8]", "Params.sketch13_height")
pocket10 = body.newObject("PartDesign::Pocket", "Pocket009")
pocket10.Profile = sketch13
pocket10.Type = "UpToFirst"
pocket10.Reversed = True

sketch14 = body.newObject("Sketcher::SketchObject", "Sketch013")
sketch14.AttachmentSupport = (doc.getObject("XZ_Plane"), [""])
sketch14.MapMode = "FlatFace"
sketch14.AttachmentOffset = App.Placement(Vector(0, 0, -1.88), App.Rotation())
sketch14.addGeometry(Part.Circle(Vector(23.12, -3.008, 0), Vector(0, 0, 1), 1.0922), False)
sketch14.addConstraint(Sketcher.Constraint("Diameter", 0, Q("0.086 in")))
sketch14.addConstraint(Sketcher.Constraint("DistanceX", -1, 1, 0, 3, Q("23.12 mm")))
sketch14.addConstraint(Sketcher.Constraint("DistanceY", 0, 3, -1, 1, Q("3.008 mm")))
sketch14.setExpression("Constraints[0]", "Params.sketch14_diameter")
pocket11 = body.newObject("PartDesign::Pocket", "Pocket010")
pocket11.Profile = sketch14
pocket11.Type = "UpToFirst"
pocket11.Reversed = True

sketch15 = body.newObject("Sketcher::SketchObject", "Sketch014")
sketch15.AttachmentSupport = (doc.getObject("XZ_Plane"), [""])
sketch15.MapMode = "FlatFace"
sketch15.AttachmentOffset = App.Placement(Vector(0, 0, -1.88), App.Rotation())
sketch15.addGeometry(Part.Circle(Vector(10.5, -3.008, 0), Vector(0, 0, 1), 1.0922), False)
sketch15.addConstraint(Sketcher.Constraint("Diameter", 0, Q("0.086 in")))
sketch15.addConstraint(Sketcher.Constraint("DistanceX", -1, 1, 0, 3, Q("10.5 mm")))
sketch15.addConstraint(Sketcher.Constraint("DistanceY", 0, 3, -1, 1, Q("3.008 mm")))
sketch15.setExpression("Constraints[0]", "Params.sketch15_diameter")
pocket12 = body.newObject("PartDesign::Pocket", "Pocket011")
pocket12.Profile = sketch15
pocket12.Type = "UpToFirst"
pocket12.Reversed = True

sketch16 = body.newObject("Sketcher::SketchObject", "Sketch015")
sketch16.AttachmentSupport = (doc.getObject("XZ_Plane"), [""])
sketch16.MapMode = "FlatFace"
sketch16.AttachmentOffset = App.Placement(Vector(0, 0, -1.88), App.Rotation())
sketch16.addGeometry(Part.Circle(Vector(2.5, -3.008, 0), Vector(0, 0, 1), 1.0922), False)
sketch16.addConstraint(Sketcher.Constraint("Diameter", 0, Q("0.086 in")))
sketch16.addConstraint(Sketcher.Constraint("DistanceX", -1, 1, 0, 3, Q("2.5 mm")))
sketch16.addConstraint(Sketcher.Constraint("DistanceY", 0, 3, -1, 1, Q("3.008 mm")))
sketch16.setExpression("Constraints[0]", "Params.sketch16_diameter")
pocket13 = body.newObject("PartDesign::Pocket", "Pocket012")
pocket13.Profile = sketch16
pocket13.Type = "UpToFirst"
pocket13.Reversed = True

sketch17 = body.newObject("Sketcher::SketchObject", "Sketch016")
sketch17.AttachmentSupport = (doc.getObject("XZ_Plane"), [""])
sketch17.MapMode = "FlatFace"
sketch17.AttachmentOffset = App.Placement(Vector(0, 0, -1.88), App.Rotation())
sketch17.addGeometry(Part.Circle(Vector(79.12, -3.008, 0), Vector(0, 0, 1), 1.0922), False)
sketch17.addConstraint(Sketcher.Constraint("Diameter", 0, Q("0.086 in")))
sketch17.addConstraint(Sketcher.Constraint("DistanceX", -1, 1, 0, 3, Q("79.12 mm")))
sketch17.addConstraint(Sketcher.Constraint("DistanceY", 0, 3, -1, 1, Q("3.008 mm")))
sketch17.setExpression("Constraints[0]", "Params.sketch17_diameter")
pocket14 = body.newObject("PartDesign::Pocket", "Pocket013")
pocket14.Profile = sketch17
pocket14.Type = "UpToFirst"
pocket14.Reversed = True

sketch18 = body.newObject("Sketcher::SketchObject", "Sketch017")
sketch18.AttachmentSupport = (doc.getObject("XZ_Plane"), [""])
sketch18.MapMode = "FlatFace"
sketch18.AttachmentOffset = App.Placement(Vector(0, 0, -1.88), App.Rotation())
sketch18.addGeometry(Part.Circle(Vector(91.74, -3.008, 0), Vector(0, 0, 1), 1.0922), False)
sketch18.addConstraint(Sketcher.Constraint("Diameter", 0, Q("0.086 in")))
sketch18.addConstraint(Sketcher.Constraint("DistanceX", -1, 1, 0, 3, Q("91.74 mm")))
sketch18.addConstraint(Sketcher.Constraint("DistanceY", 0, 3, -1, 1, Q("3.008 mm")))
sketch18.setExpression("Constraints[0]", "Params.sketch18_diameter")
pocket15 = body.newObject("PartDesign::Pocket", "Pocket014")
pocket15.Profile = sketch18
pocket15.Type = "UpToFirst"
pocket15.Reversed = True

sketch19 = body.newObject("Sketcher::SketchObject", "Sketch018")
sketch19.AttachmentSupport = (doc.getObject("XZ_Plane"), [""])
sketch19.MapMode = "FlatFace"
sketch19.AttachmentOffset = App.Placement(Vector(0, 0, -1.88), App.Rotation())
sketch19.addGeometry(Part.Circle(Vector(99.74, -3.008, 0), Vector(0, 0, 1), 1.0922), False)
sketch19.addConstraint(Sketcher.Constraint("Diameter", 0, Q("0.086 in")))
sketch19.addConstraint(Sketcher.Constraint("DistanceX", -1, 1, 0, 3, Q("99.74 mm")))
sketch19.addConstraint(Sketcher.Constraint("DistanceY", 0, 3, -1, 1, Q("3.008 mm")))
sketch19.setExpression("Constraints[0]", "Params.sketch19_diameter")
pocket16 = body.newObject("PartDesign::Pocket", "Pocket015")
pocket16.Profile = sketch19
pocket16.Type = "UpToFirst"
pocket16.Reversed = True

doc.recompute()
